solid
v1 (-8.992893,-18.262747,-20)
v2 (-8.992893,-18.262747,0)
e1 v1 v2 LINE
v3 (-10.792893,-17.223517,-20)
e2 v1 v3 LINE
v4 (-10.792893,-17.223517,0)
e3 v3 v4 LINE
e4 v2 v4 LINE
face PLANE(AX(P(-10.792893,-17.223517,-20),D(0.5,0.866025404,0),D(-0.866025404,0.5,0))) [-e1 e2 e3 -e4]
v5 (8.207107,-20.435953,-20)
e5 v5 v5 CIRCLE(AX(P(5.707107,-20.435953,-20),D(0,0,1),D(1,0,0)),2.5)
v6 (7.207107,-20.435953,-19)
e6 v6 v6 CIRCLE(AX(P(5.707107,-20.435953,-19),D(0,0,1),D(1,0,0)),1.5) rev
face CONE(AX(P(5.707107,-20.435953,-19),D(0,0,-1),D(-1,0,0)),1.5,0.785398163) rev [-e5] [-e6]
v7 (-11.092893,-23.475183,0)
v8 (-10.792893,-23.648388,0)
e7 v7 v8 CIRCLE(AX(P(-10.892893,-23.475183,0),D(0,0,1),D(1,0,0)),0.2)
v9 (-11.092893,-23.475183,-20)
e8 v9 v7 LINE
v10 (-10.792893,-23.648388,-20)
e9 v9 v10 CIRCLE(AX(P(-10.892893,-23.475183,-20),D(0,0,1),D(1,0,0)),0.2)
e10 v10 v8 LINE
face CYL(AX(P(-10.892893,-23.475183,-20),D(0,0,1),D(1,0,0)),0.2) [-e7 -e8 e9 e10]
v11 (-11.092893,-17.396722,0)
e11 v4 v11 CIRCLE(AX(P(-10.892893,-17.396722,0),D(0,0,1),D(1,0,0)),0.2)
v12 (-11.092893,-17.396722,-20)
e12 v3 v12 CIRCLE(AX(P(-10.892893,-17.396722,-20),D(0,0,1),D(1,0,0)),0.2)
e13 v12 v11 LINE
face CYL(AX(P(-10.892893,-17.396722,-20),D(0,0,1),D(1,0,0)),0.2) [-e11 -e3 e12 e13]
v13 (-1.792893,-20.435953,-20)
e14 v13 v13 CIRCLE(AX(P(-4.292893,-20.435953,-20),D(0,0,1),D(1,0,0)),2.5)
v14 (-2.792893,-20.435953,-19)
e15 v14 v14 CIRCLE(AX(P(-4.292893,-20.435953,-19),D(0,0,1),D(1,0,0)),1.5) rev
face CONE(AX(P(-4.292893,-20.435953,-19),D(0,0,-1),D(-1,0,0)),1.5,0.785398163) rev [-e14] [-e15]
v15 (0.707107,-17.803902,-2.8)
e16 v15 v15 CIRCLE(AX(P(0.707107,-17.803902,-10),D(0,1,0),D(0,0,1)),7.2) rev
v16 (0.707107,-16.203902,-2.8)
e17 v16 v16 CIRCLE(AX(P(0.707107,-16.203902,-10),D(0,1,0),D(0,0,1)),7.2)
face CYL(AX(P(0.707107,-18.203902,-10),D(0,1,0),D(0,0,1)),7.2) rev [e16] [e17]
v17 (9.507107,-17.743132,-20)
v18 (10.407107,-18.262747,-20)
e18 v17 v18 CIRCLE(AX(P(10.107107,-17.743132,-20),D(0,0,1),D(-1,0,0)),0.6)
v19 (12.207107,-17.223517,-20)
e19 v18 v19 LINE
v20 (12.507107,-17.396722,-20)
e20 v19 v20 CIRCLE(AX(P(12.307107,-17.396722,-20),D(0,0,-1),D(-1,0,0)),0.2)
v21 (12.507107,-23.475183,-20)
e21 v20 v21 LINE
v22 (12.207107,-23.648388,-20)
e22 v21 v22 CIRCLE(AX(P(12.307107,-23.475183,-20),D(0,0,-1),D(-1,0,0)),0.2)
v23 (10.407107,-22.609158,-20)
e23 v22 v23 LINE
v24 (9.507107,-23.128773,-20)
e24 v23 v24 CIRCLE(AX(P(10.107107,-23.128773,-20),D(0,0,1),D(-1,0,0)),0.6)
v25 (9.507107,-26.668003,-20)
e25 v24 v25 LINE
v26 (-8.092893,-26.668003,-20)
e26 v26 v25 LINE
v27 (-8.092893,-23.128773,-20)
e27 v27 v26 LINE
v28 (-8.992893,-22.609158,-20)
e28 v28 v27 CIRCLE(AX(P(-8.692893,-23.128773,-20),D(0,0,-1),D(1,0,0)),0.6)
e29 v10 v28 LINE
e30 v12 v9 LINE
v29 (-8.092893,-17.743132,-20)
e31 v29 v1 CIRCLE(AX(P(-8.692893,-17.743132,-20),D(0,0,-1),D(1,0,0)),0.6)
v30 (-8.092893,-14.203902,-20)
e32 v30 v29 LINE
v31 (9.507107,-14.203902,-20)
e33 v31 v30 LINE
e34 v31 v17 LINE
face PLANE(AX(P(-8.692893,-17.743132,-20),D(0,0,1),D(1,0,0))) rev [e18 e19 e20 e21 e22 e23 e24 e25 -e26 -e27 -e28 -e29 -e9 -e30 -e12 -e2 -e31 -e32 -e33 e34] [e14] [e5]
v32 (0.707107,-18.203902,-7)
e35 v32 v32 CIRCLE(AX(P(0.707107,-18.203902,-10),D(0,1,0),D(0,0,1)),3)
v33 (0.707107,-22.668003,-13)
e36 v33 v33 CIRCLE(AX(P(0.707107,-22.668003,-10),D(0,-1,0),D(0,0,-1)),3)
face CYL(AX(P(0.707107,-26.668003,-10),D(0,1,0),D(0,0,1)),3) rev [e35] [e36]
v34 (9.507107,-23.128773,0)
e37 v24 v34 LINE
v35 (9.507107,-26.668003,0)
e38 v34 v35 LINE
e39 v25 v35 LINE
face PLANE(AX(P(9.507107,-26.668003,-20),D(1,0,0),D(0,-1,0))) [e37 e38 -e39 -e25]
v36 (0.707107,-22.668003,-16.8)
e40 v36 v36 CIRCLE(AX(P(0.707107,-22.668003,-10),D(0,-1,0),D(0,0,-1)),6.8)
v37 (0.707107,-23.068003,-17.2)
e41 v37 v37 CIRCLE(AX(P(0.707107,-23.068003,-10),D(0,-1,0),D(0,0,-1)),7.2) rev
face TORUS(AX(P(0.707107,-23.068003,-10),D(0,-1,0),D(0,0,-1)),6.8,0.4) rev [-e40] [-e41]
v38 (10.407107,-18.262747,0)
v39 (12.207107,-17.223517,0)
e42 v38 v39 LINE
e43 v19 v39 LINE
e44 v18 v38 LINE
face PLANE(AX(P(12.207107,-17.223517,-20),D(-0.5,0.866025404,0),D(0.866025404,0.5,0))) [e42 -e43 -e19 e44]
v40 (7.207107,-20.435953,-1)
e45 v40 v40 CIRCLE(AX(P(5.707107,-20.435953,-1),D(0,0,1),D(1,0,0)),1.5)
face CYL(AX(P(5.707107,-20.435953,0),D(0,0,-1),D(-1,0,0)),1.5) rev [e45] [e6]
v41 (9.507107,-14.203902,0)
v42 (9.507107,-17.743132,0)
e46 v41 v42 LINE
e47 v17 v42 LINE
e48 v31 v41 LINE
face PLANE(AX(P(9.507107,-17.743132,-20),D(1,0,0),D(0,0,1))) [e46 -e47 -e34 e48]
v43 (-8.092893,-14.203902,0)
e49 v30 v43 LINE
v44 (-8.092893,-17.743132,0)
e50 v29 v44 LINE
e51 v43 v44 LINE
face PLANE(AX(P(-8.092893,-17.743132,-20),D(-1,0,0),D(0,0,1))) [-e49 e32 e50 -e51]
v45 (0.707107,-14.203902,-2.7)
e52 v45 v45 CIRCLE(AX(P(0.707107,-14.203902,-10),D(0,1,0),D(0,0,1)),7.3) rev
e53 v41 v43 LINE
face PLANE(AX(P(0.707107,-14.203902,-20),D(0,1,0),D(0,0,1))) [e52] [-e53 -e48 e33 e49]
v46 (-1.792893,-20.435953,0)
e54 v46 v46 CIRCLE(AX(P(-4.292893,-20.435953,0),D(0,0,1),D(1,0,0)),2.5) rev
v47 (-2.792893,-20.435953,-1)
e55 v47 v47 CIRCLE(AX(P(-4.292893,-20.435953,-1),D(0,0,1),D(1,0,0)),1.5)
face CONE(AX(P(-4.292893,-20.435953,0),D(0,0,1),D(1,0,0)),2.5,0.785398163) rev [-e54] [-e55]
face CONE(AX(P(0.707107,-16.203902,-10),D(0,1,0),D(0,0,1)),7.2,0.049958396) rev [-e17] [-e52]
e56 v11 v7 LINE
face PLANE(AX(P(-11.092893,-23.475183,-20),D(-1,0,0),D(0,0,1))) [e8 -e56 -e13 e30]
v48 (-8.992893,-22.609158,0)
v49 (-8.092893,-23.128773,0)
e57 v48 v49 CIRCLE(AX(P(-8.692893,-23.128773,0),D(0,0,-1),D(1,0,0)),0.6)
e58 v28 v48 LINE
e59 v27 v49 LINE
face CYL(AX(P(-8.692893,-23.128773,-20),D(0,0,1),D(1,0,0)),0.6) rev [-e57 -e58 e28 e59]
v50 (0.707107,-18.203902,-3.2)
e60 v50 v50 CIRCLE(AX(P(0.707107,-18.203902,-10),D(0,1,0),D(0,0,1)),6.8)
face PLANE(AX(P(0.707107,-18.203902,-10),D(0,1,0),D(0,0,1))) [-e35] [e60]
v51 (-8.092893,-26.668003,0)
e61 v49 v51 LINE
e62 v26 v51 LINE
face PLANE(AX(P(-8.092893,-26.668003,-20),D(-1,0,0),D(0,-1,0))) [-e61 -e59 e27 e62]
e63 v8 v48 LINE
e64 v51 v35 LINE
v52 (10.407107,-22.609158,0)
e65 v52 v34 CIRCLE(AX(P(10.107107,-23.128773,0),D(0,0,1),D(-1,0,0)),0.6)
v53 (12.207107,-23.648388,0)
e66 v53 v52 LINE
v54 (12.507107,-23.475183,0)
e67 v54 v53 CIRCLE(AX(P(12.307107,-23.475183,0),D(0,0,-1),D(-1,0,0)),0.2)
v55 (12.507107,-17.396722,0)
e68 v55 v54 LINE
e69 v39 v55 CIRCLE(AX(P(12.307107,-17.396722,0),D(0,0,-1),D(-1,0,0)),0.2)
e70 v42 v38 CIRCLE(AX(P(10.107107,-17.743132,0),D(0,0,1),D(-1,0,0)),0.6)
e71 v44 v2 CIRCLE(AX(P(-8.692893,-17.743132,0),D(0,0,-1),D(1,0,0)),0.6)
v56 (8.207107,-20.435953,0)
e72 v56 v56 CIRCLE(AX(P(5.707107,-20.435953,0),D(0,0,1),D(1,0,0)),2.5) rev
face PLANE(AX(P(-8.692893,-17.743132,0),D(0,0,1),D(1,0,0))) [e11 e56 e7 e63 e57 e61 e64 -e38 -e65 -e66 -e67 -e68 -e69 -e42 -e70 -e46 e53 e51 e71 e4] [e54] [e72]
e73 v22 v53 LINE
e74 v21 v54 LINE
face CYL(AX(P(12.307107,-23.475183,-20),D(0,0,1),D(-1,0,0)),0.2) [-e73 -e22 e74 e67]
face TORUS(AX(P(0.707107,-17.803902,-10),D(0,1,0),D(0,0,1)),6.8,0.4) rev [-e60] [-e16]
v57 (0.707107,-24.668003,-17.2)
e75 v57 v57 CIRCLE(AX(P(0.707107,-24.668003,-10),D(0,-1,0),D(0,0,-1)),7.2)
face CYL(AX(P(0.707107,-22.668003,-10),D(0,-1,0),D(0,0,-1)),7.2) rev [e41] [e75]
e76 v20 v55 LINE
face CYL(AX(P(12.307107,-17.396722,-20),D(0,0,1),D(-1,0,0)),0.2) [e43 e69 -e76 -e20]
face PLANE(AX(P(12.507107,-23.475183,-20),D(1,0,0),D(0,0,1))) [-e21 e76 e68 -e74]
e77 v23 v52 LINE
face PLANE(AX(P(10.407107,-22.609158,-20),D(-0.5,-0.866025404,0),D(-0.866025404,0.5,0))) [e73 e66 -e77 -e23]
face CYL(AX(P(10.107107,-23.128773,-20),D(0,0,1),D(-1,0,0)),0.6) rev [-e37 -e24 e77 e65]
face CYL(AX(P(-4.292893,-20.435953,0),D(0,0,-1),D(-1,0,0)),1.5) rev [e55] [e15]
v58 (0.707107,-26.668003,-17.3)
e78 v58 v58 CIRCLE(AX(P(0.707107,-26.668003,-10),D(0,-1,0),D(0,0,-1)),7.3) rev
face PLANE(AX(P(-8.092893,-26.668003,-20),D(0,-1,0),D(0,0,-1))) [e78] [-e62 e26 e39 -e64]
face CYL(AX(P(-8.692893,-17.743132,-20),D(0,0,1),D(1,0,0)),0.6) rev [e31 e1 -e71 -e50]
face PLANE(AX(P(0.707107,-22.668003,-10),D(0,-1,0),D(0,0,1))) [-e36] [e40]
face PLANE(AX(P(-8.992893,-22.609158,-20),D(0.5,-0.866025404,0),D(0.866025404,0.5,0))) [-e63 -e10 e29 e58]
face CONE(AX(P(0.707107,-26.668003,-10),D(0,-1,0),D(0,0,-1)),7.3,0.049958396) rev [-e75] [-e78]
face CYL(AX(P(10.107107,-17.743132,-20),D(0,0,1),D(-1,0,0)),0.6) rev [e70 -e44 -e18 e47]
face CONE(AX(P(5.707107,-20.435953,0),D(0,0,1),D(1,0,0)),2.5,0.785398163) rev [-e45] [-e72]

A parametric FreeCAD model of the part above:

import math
import FreeCAD as App
import Part
import Sketcher
from FreeCAD import Vector
Q = App.Units.Quantity


def edges_at(feature, points):
    """Names of the edges that pass closest to the given points."""
    edges = feature.Shape.Edges
    near = lambda p: min(range(len(edges)), key=lambda i: edges[i].distToShape(Part.Vertex(*p))[0])
    return sorted({f"Edge{near(p) + 1}" for p in points})

doc = App.newDocument("Part")
body = doc.addObject("PartDesign::Body", "Body")

# Sketch on XY plane
sketch1 = body.newObject("Sketcher::SketchObject", "Sketch")
sketch1.AttachmentSupport = (doc.getObject("XY_Plane"), [""])
sketch1.MapMode = "FlatFace"
sketch1.addGeometry([
    Part.LineSegment(Vector(-8.09, -26.67, 0), Vector(0.71, -26.67, 0)),  # 0
    Part.LineSegment(Vector(0.71, -26.67, 0), Vector(0.71, -14.2, 0)),  # 1
    Part.LineSegment(Vector(0.71, -14.2, 0), Vector(-8.09, -14.2, 0)),  # 2
    Part.LineSegment(Vector(-8.09, -14.2, 0), Vector(-8.09, -17.74, 0)),  # 3
    Part.ArcOfCircle(Part.Circle(Vector(-8.69, -17.74, 0), Vector(0, 0, 1), 0.6), math.radians(-120), math.radians(0)),  # 4
    Part.LineSegment(Vector(-8.99, -18.26, 0), Vector(-10.79, -17.22, 0)),  # 5
    Part.ArcOfCircle(Part.Circle(Vector(-10.89, -17.4, 0), Vector(0, 0, 1), 0.2), math.radians(60), math.radians(180)),  # 6
    Part.LineSegment(Vector(-11.09, -17.4, 0), Vector(-11.09, -23.48, 0)),  # 7
    Part.ArcOfCircle(Part.Circle(Vector(-10.89, -23.48, 0), Vector(0, 0, 1), 0.2), math.radians(180), math.radians(300)),  # 8
    Part.LineSegment(Vector(-10.79, -23.65, 0), Vector(-8.99, -22.61, 0)),  # 9
    Part.ArcOfCircle(Part.Circle(Vector(-8.69, -23.13, 0), Vector(0, 0, 1), 0.6), math.radians(0), math.radians(120)),  # 10
    Part.LineSegment(Vector(-8.09, -23.13, 0), Vector(-8.09, -26.67, 0)),  # 11
], False)
sketch1.addConstraint([
    Sketcher.Constraint("Coincident", 0, 2, 1, 1),
    Sketcher.Constraint("Coincident", 1, 2, 2, 1),
    Sketcher.Constraint("Coincident", 2, 2, 3, 1),
    Sketcher.Constraint("Tangent", 3, 2, 4, 2),
    Sketcher.Constraint("Tangent", 4, 1, 5, 1),
    Sketcher.Constraint("Tangent", 5, 2, 6, 1),
    Sketcher.Constraint("Tangent", 6, 2, 7, 1),
    Sketcher.Constraint("Tangent", 7, 2, 8, 1),
    Sketcher.Constraint("Tangent", 8, 2, 9, 1),
    Sketcher.Constraint("Tangent", 9, 2, 10, 2),
    Sketcher.Constraint("Tangent", 10, 1, 11, 1),
    Sketcher.Constraint("Coincident", 11, 2, 0, 1),
    Sketcher.Constraint("Horizontal", 0),
    Sketcher.Constraint("Vertical", 1),
    Sketcher.Constraint("Horizontal", 2),
    Sketcher.Constraint("Vertical", 3),
    Sketcher.Constraint("Vertical", 7),
    Sketcher.Constraint("Vertical", 11),
    Sketcher.Constraint("Equal", 6, 8),
    Sketcher.Constraint("Equal", 4, 10),
    Sketcher.Constraint("Vertical", 4, 3, 10, 3),
    Sketcher.Constraint("Vertical", 5, 2, 8, 2),
    Sketcher.Constraint("Equal", 3, 11),
    Sketcher.Constraint("Radius", 4, 0.6),
    Sketcher.Constraint("Radius", 6, 0.2),
    Sketcher.Constraint("Angle", 5, Q("150 deg")),
    Sketcher.Constraint("DistanceX", 0, 1, 0, 2, 8.8),
    Sketcher.Constraint("DistanceX", 6, 2, 3, 2, 3.0),
    Sketcher.Constraint("DistanceY", 1, 1, 1, 2, 12.464102),
    Sketcher.Constraint("DistanceY", 3, 2, 3, 1, 3.53923),
    Sketcher.Constraint("DistanceY", 1, 2, -1, 1, 14.203902),
    Sketcher.Constraint("DistanceX", 4, 3, -1, 1, 8.692893),
])
pad1 = body.newObject("PartDesign::Pad", "Pad")
pad1.Profile = sketch1
pad1.Length = 20
pad1.Reversed = True
body2 = doc.addObject("PartDesign::Body", "Body001")
doc.recompute()

body2.BaseFeature = body
doc.recompute()

mirroring = doc.addObject("Part::Mirroring", "Mirroring")
mirroring.Source = body
mirroring.Base = Vector(0.707107, -26.668003, -20)
mirroring.Normal = Vector(1, 0, 0)
body3 = doc.addObject("PartDesign::Body", "Body002")
body3.BaseFeature = mirroring
boolean = body2.newObject("PartDesign::Boolean", "Boolean")
boolean.Type = "Fuse"
boolean.addObjects([body3])
doc.recompute()

# Sketch on XZ plane
sketch2 = body2.newObject("Sketcher::SketchObject", "Sketch001")
sketch2.AttachmentSupport = (doc.getObject("XZ_Plane001"), [""])
sketch2.MapMode = "FlatFace"
sketch2.AttachmentOffset = App.Placement(Vector(0, 0, 14.203902), App.Rotation())
sketch2.addGeometry(Part.Circle(Vector(1, -10, 0), Vector(0, 0, 1), 7), False)
sketch2.addConstraint([
    Sketcher.Constraint("Diameter", 0, 14.4),
    Sketcher.Constraint("DistanceY", 0, 3, -1, 1, 10.0),
    Sketcher.Constraint("DistanceX", -1, 1, 0, 3, 0.707107),
])
pocket1 = body2.newObject("PartDesign::Pocket", "Pocket")
pocket1.Profile = sketch2
pocket1.Length = 4
pocket1.Reversed = True
doc.recompute()

datumplane = body2.newObject("PartDesign::Plane", "DatumPlane")
datumplane.AttachmentSupport = (doc.getObject("XZ_Plane001"), [""])
datumplane.MapMode = "FlatFace"
datumplane.AttachmentOffset = App.Placement(Vector(0, 0, 20.435953), App.Rotation())
mirrored = body2.newObject("PartDesign::Mirrored", "Mirrored")
mirrored.Originals = [pocket1]
mirrored.MirrorPlane = (datumplane, [""])
body2.Tip = mirrored

# Sketch on XZ plane
sketch3 = body2.newObject("Sketcher::SketchObject", "Sketch002")
sketch3.AttachmentSupport = (doc.getObject("XZ_Plane001"), [""])
sketch3.MapMode = "FlatFace"
sketch3.AttachmentOffset = App.Placement(Vector(0, 0, 18.203902), App.Rotation())
sketch3.addGeometry(Part.Circle(Vector(0.7, -10, 0), Vector(0, 0, 1), 3), False)
sketch3.addConstraint([
    Sketcher.Constraint("Diameter", 0, 6.0),
    Sketcher.Constraint("DistanceY", 0, 3, -1, 1, 10.0),
    Sketcher.Constraint("DistanceX", -1, 1, 0, 3, 0.707107),
])
pocket2 = body2.newObject("PartDesign::Pocket", "Pocket001")
pocket2.Profile = sketch3
pocket2.Type = "ThroughAll"
pocket2.Reversed = True

# Sketch on XY plane
sketch4 = body2.newObject("Sketcher::SketchObject", "Sketch003")
sketch4.AttachmentSupport = (doc.getObject("XY_Plane001"), [""])
sketch4.MapMode = "FlatFace"
sketch4.AttachmentOffset = App.Placement(Vector(0, 0, -20), App.Rotation())
sketch4.addGeometry([
    Part.Circle(Vector(-4.3, -20.4, 0), Vector(0, 0, 1), 1.5),
    Part.Circle(Vector(5.7, -20.4, 0), Vector(0, 0, 1), 1.5),
], False)
sketch4.addConstraint([
    Sketcher.Constraint("Equal", 0, 1),
    Sketcher.Constraint("Horizontal", 0, 3, 1, 3),
    Sketcher.Constraint("Diameter", 0, 3.0),
    Sketcher.Constraint("DistanceX", 0, 3, 1, 3, 10.0),
    Sketcher.Constraint("DistanceX", 0, 3, -1, 1, 4.292893),
    Sketcher.Constraint("DistanceY", 0, 3, -1, 1, 20.435953),
])
pocket3 = body2.newObject("PartDesign::Pocket", "Pocket002")
pocket3.Profile = sketch4
pocket3.Type = "ThroughAll"
pocket3.Reversed = True
doc.recompute()

chamfer = body2.newObject("PartDesign::Chamfer", "Chamfer")
chamfer.Base = (pocket3, edges_at(pocket3, [
    (-2.793, -20.436, 0),
    (-2.793, -20.436, -20),
    (4.207, -20.436, 0),
    (4.207, -20.436, -20),
]))
chamfer.Size = 1
doc.recompute()

fillet = body2.newObject("PartDesign::Fillet", "Fillet")
fillet.Base = (chamfer, edges_at(chamfer, [(0.707, -18.204, -17.2), (0.707, -22.668, -17.2)]))
fillet.Radius = 0.4
doc.recompute()

chamfer2 = body2.newObject("PartDesign::Chamfer", "Chamfer001")
chamfer2.Base = (fillet, edges_at(fillet, [(0.707, -14.204, -17.2)]))
chamfer2.ChamferType = "Two distances"
chamfer2.Size = 0.1
chamfer2.Size2 = 2
doc.recompute()

chamfer3 = body2.newObject("PartDesign::Chamfer", "Chamfer002")
chamfer3.Base = (chamfer2, edges_at(chamfer2, [(0.707, -26.668, -17.2)]))
chamfer3.ChamferType = "Two distances"
chamfer3.Size = 2
chamfer3.Size2 = 0.1
chamfer3.FlipDirection = True
mirroring.Visibility = False

doc.recompute()
